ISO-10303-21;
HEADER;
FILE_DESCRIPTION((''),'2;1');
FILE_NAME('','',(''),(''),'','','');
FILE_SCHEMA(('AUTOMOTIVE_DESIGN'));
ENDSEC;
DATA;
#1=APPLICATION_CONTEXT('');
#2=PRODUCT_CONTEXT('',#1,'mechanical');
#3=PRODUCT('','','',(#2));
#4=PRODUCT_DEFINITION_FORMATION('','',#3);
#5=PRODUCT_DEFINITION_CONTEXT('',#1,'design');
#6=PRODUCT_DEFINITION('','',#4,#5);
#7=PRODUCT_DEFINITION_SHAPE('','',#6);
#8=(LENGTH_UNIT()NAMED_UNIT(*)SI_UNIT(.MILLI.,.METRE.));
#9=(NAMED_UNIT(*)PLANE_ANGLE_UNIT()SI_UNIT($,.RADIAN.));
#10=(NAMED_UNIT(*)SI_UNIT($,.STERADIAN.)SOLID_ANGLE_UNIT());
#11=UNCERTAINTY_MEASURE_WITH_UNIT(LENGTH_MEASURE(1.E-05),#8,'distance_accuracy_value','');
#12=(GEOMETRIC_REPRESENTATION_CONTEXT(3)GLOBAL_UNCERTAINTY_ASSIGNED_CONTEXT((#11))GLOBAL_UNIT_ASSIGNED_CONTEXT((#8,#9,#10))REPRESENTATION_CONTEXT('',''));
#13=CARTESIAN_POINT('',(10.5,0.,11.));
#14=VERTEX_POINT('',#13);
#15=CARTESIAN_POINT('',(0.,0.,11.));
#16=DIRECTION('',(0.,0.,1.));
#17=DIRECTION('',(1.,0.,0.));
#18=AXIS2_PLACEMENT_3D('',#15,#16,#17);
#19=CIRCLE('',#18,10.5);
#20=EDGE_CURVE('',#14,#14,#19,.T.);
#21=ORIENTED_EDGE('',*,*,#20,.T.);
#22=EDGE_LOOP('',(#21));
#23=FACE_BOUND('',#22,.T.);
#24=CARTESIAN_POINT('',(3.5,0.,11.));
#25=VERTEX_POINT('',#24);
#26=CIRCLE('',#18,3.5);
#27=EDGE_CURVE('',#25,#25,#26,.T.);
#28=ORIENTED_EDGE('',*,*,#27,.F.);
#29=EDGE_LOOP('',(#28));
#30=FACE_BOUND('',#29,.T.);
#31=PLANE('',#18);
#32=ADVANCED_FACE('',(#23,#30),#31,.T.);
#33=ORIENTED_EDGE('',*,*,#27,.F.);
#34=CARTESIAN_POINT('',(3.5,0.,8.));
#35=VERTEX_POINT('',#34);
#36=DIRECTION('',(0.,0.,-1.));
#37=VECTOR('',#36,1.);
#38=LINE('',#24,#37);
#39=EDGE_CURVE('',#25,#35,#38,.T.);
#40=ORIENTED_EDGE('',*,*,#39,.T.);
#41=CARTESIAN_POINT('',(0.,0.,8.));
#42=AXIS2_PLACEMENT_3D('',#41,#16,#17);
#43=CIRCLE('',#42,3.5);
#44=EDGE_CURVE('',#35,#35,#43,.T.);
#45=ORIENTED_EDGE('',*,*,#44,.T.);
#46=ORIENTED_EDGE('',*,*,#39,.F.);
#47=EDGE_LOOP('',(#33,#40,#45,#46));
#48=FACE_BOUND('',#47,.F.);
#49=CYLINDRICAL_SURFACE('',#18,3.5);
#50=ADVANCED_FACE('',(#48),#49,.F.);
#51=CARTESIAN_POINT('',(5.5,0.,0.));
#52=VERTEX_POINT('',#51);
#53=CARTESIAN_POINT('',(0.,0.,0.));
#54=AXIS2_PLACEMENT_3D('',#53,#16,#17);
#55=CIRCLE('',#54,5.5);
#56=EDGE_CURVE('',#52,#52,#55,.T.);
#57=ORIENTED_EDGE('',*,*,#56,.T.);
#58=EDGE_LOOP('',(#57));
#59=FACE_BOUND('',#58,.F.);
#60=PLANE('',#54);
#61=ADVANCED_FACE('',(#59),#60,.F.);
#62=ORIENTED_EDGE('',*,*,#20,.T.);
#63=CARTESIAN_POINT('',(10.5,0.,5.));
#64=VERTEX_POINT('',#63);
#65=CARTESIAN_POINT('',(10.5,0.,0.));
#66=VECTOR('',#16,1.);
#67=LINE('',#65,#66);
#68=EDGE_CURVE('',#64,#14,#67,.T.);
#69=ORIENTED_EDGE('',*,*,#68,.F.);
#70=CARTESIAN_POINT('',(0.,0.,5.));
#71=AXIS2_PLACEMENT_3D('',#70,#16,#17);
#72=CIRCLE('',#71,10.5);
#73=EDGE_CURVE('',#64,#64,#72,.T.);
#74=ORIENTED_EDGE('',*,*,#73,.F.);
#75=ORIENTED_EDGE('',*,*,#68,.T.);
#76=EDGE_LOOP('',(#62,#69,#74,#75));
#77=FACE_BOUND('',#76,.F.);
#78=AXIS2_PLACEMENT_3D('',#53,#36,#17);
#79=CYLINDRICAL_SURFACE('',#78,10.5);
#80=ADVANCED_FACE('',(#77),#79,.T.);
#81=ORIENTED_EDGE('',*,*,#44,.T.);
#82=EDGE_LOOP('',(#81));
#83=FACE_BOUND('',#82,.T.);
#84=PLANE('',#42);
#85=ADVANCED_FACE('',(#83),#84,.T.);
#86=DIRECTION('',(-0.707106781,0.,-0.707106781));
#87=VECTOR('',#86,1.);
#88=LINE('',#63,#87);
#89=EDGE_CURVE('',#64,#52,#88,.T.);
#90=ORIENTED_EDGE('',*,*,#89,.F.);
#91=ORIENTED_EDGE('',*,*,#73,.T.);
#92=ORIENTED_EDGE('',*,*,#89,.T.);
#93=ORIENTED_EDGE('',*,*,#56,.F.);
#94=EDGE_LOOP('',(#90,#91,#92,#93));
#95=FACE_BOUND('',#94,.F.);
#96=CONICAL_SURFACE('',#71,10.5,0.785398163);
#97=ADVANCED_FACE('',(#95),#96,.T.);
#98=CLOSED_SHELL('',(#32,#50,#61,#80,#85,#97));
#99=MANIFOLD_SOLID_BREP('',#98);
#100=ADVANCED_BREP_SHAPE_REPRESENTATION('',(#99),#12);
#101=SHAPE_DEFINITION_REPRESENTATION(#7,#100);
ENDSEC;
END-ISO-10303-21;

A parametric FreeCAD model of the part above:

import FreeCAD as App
import Part
import Sketcher

V = App.Vector
Q = App.Units.Quantity


def edges_at(feature, points):
    """Names of the edges that pass closest to the given points."""
    edges = feature.Shape.Edges
    near = lambda p: min(range(len(edges)), key=lambda i: edges[i].distToShape(Part.Vertex(*p))[0])
    return sorted({f"Edge{near(p) + 1}" for p in points})

doc = App.newDocument("Part")
body = doc.addObject("PartDesign::Body", "Body")

# Sketch on XY plane
sketch1 = doc.addObject("Sketcher::SketchObject", "Sketch")
body.addObject(sketch1)
sketch1.AttachmentSupport = (doc.XY_Plane, [""])
sketch1.MapMode = "FlatFace"
sketch1.addGeometry(Part.Circle(V(0, 0, 0), V(0, 0, 1), 10), False)
sketch1.addConstraint([
    Sketcher.Constraint("Coincident", 0, 3, -1, 1),
    Sketcher.Constraint("Diameter", 0, Q("21 mm")),
])
pad1 = doc.addObject("PartDesign::Pad", "Pad")
body.addObject(pad1)
pad1.Profile = sketch1
pad1.Length = 11

# Sketch on XY plane
sketch2 = doc.addObject("Sketcher::SketchObject", "Sketch001")
body.addObject(sketch2)
sketch2.AttachmentSupport = (doc.XY_Plane, [""])
sketch2.MapMode = "FlatFace"
sketch2.AttachmentOffset = App.Placement(V(0, 0, 11), App.Rotation())
sketch2.addGeometry(Part.Circle(V(0, 0, 0), V(0, 0, 1), 3.5), False)
sketch2.addConstraint([
    Sketcher.Constraint("Coincident", 0, 3, -1, 1),
    Sketcher.Constraint("Diameter", 0, Q("7 mm")),
])
pocket1 = doc.addObject("PartDesign::Pocket", "Pocket")
body.addObject(pocket1)
pocket1.Profile = sketch2
pocket1.Length = 3
doc.recompute()

chamfer = doc.addObject("PartDesign::Chamfer", "Chamfer")
body.addObject(chamfer)
chamfer.Base = (pocket1, edges_at(pocket1, [(-10.5, 0, 0)]))
chamfer.Size = 5

doc.recompute()
